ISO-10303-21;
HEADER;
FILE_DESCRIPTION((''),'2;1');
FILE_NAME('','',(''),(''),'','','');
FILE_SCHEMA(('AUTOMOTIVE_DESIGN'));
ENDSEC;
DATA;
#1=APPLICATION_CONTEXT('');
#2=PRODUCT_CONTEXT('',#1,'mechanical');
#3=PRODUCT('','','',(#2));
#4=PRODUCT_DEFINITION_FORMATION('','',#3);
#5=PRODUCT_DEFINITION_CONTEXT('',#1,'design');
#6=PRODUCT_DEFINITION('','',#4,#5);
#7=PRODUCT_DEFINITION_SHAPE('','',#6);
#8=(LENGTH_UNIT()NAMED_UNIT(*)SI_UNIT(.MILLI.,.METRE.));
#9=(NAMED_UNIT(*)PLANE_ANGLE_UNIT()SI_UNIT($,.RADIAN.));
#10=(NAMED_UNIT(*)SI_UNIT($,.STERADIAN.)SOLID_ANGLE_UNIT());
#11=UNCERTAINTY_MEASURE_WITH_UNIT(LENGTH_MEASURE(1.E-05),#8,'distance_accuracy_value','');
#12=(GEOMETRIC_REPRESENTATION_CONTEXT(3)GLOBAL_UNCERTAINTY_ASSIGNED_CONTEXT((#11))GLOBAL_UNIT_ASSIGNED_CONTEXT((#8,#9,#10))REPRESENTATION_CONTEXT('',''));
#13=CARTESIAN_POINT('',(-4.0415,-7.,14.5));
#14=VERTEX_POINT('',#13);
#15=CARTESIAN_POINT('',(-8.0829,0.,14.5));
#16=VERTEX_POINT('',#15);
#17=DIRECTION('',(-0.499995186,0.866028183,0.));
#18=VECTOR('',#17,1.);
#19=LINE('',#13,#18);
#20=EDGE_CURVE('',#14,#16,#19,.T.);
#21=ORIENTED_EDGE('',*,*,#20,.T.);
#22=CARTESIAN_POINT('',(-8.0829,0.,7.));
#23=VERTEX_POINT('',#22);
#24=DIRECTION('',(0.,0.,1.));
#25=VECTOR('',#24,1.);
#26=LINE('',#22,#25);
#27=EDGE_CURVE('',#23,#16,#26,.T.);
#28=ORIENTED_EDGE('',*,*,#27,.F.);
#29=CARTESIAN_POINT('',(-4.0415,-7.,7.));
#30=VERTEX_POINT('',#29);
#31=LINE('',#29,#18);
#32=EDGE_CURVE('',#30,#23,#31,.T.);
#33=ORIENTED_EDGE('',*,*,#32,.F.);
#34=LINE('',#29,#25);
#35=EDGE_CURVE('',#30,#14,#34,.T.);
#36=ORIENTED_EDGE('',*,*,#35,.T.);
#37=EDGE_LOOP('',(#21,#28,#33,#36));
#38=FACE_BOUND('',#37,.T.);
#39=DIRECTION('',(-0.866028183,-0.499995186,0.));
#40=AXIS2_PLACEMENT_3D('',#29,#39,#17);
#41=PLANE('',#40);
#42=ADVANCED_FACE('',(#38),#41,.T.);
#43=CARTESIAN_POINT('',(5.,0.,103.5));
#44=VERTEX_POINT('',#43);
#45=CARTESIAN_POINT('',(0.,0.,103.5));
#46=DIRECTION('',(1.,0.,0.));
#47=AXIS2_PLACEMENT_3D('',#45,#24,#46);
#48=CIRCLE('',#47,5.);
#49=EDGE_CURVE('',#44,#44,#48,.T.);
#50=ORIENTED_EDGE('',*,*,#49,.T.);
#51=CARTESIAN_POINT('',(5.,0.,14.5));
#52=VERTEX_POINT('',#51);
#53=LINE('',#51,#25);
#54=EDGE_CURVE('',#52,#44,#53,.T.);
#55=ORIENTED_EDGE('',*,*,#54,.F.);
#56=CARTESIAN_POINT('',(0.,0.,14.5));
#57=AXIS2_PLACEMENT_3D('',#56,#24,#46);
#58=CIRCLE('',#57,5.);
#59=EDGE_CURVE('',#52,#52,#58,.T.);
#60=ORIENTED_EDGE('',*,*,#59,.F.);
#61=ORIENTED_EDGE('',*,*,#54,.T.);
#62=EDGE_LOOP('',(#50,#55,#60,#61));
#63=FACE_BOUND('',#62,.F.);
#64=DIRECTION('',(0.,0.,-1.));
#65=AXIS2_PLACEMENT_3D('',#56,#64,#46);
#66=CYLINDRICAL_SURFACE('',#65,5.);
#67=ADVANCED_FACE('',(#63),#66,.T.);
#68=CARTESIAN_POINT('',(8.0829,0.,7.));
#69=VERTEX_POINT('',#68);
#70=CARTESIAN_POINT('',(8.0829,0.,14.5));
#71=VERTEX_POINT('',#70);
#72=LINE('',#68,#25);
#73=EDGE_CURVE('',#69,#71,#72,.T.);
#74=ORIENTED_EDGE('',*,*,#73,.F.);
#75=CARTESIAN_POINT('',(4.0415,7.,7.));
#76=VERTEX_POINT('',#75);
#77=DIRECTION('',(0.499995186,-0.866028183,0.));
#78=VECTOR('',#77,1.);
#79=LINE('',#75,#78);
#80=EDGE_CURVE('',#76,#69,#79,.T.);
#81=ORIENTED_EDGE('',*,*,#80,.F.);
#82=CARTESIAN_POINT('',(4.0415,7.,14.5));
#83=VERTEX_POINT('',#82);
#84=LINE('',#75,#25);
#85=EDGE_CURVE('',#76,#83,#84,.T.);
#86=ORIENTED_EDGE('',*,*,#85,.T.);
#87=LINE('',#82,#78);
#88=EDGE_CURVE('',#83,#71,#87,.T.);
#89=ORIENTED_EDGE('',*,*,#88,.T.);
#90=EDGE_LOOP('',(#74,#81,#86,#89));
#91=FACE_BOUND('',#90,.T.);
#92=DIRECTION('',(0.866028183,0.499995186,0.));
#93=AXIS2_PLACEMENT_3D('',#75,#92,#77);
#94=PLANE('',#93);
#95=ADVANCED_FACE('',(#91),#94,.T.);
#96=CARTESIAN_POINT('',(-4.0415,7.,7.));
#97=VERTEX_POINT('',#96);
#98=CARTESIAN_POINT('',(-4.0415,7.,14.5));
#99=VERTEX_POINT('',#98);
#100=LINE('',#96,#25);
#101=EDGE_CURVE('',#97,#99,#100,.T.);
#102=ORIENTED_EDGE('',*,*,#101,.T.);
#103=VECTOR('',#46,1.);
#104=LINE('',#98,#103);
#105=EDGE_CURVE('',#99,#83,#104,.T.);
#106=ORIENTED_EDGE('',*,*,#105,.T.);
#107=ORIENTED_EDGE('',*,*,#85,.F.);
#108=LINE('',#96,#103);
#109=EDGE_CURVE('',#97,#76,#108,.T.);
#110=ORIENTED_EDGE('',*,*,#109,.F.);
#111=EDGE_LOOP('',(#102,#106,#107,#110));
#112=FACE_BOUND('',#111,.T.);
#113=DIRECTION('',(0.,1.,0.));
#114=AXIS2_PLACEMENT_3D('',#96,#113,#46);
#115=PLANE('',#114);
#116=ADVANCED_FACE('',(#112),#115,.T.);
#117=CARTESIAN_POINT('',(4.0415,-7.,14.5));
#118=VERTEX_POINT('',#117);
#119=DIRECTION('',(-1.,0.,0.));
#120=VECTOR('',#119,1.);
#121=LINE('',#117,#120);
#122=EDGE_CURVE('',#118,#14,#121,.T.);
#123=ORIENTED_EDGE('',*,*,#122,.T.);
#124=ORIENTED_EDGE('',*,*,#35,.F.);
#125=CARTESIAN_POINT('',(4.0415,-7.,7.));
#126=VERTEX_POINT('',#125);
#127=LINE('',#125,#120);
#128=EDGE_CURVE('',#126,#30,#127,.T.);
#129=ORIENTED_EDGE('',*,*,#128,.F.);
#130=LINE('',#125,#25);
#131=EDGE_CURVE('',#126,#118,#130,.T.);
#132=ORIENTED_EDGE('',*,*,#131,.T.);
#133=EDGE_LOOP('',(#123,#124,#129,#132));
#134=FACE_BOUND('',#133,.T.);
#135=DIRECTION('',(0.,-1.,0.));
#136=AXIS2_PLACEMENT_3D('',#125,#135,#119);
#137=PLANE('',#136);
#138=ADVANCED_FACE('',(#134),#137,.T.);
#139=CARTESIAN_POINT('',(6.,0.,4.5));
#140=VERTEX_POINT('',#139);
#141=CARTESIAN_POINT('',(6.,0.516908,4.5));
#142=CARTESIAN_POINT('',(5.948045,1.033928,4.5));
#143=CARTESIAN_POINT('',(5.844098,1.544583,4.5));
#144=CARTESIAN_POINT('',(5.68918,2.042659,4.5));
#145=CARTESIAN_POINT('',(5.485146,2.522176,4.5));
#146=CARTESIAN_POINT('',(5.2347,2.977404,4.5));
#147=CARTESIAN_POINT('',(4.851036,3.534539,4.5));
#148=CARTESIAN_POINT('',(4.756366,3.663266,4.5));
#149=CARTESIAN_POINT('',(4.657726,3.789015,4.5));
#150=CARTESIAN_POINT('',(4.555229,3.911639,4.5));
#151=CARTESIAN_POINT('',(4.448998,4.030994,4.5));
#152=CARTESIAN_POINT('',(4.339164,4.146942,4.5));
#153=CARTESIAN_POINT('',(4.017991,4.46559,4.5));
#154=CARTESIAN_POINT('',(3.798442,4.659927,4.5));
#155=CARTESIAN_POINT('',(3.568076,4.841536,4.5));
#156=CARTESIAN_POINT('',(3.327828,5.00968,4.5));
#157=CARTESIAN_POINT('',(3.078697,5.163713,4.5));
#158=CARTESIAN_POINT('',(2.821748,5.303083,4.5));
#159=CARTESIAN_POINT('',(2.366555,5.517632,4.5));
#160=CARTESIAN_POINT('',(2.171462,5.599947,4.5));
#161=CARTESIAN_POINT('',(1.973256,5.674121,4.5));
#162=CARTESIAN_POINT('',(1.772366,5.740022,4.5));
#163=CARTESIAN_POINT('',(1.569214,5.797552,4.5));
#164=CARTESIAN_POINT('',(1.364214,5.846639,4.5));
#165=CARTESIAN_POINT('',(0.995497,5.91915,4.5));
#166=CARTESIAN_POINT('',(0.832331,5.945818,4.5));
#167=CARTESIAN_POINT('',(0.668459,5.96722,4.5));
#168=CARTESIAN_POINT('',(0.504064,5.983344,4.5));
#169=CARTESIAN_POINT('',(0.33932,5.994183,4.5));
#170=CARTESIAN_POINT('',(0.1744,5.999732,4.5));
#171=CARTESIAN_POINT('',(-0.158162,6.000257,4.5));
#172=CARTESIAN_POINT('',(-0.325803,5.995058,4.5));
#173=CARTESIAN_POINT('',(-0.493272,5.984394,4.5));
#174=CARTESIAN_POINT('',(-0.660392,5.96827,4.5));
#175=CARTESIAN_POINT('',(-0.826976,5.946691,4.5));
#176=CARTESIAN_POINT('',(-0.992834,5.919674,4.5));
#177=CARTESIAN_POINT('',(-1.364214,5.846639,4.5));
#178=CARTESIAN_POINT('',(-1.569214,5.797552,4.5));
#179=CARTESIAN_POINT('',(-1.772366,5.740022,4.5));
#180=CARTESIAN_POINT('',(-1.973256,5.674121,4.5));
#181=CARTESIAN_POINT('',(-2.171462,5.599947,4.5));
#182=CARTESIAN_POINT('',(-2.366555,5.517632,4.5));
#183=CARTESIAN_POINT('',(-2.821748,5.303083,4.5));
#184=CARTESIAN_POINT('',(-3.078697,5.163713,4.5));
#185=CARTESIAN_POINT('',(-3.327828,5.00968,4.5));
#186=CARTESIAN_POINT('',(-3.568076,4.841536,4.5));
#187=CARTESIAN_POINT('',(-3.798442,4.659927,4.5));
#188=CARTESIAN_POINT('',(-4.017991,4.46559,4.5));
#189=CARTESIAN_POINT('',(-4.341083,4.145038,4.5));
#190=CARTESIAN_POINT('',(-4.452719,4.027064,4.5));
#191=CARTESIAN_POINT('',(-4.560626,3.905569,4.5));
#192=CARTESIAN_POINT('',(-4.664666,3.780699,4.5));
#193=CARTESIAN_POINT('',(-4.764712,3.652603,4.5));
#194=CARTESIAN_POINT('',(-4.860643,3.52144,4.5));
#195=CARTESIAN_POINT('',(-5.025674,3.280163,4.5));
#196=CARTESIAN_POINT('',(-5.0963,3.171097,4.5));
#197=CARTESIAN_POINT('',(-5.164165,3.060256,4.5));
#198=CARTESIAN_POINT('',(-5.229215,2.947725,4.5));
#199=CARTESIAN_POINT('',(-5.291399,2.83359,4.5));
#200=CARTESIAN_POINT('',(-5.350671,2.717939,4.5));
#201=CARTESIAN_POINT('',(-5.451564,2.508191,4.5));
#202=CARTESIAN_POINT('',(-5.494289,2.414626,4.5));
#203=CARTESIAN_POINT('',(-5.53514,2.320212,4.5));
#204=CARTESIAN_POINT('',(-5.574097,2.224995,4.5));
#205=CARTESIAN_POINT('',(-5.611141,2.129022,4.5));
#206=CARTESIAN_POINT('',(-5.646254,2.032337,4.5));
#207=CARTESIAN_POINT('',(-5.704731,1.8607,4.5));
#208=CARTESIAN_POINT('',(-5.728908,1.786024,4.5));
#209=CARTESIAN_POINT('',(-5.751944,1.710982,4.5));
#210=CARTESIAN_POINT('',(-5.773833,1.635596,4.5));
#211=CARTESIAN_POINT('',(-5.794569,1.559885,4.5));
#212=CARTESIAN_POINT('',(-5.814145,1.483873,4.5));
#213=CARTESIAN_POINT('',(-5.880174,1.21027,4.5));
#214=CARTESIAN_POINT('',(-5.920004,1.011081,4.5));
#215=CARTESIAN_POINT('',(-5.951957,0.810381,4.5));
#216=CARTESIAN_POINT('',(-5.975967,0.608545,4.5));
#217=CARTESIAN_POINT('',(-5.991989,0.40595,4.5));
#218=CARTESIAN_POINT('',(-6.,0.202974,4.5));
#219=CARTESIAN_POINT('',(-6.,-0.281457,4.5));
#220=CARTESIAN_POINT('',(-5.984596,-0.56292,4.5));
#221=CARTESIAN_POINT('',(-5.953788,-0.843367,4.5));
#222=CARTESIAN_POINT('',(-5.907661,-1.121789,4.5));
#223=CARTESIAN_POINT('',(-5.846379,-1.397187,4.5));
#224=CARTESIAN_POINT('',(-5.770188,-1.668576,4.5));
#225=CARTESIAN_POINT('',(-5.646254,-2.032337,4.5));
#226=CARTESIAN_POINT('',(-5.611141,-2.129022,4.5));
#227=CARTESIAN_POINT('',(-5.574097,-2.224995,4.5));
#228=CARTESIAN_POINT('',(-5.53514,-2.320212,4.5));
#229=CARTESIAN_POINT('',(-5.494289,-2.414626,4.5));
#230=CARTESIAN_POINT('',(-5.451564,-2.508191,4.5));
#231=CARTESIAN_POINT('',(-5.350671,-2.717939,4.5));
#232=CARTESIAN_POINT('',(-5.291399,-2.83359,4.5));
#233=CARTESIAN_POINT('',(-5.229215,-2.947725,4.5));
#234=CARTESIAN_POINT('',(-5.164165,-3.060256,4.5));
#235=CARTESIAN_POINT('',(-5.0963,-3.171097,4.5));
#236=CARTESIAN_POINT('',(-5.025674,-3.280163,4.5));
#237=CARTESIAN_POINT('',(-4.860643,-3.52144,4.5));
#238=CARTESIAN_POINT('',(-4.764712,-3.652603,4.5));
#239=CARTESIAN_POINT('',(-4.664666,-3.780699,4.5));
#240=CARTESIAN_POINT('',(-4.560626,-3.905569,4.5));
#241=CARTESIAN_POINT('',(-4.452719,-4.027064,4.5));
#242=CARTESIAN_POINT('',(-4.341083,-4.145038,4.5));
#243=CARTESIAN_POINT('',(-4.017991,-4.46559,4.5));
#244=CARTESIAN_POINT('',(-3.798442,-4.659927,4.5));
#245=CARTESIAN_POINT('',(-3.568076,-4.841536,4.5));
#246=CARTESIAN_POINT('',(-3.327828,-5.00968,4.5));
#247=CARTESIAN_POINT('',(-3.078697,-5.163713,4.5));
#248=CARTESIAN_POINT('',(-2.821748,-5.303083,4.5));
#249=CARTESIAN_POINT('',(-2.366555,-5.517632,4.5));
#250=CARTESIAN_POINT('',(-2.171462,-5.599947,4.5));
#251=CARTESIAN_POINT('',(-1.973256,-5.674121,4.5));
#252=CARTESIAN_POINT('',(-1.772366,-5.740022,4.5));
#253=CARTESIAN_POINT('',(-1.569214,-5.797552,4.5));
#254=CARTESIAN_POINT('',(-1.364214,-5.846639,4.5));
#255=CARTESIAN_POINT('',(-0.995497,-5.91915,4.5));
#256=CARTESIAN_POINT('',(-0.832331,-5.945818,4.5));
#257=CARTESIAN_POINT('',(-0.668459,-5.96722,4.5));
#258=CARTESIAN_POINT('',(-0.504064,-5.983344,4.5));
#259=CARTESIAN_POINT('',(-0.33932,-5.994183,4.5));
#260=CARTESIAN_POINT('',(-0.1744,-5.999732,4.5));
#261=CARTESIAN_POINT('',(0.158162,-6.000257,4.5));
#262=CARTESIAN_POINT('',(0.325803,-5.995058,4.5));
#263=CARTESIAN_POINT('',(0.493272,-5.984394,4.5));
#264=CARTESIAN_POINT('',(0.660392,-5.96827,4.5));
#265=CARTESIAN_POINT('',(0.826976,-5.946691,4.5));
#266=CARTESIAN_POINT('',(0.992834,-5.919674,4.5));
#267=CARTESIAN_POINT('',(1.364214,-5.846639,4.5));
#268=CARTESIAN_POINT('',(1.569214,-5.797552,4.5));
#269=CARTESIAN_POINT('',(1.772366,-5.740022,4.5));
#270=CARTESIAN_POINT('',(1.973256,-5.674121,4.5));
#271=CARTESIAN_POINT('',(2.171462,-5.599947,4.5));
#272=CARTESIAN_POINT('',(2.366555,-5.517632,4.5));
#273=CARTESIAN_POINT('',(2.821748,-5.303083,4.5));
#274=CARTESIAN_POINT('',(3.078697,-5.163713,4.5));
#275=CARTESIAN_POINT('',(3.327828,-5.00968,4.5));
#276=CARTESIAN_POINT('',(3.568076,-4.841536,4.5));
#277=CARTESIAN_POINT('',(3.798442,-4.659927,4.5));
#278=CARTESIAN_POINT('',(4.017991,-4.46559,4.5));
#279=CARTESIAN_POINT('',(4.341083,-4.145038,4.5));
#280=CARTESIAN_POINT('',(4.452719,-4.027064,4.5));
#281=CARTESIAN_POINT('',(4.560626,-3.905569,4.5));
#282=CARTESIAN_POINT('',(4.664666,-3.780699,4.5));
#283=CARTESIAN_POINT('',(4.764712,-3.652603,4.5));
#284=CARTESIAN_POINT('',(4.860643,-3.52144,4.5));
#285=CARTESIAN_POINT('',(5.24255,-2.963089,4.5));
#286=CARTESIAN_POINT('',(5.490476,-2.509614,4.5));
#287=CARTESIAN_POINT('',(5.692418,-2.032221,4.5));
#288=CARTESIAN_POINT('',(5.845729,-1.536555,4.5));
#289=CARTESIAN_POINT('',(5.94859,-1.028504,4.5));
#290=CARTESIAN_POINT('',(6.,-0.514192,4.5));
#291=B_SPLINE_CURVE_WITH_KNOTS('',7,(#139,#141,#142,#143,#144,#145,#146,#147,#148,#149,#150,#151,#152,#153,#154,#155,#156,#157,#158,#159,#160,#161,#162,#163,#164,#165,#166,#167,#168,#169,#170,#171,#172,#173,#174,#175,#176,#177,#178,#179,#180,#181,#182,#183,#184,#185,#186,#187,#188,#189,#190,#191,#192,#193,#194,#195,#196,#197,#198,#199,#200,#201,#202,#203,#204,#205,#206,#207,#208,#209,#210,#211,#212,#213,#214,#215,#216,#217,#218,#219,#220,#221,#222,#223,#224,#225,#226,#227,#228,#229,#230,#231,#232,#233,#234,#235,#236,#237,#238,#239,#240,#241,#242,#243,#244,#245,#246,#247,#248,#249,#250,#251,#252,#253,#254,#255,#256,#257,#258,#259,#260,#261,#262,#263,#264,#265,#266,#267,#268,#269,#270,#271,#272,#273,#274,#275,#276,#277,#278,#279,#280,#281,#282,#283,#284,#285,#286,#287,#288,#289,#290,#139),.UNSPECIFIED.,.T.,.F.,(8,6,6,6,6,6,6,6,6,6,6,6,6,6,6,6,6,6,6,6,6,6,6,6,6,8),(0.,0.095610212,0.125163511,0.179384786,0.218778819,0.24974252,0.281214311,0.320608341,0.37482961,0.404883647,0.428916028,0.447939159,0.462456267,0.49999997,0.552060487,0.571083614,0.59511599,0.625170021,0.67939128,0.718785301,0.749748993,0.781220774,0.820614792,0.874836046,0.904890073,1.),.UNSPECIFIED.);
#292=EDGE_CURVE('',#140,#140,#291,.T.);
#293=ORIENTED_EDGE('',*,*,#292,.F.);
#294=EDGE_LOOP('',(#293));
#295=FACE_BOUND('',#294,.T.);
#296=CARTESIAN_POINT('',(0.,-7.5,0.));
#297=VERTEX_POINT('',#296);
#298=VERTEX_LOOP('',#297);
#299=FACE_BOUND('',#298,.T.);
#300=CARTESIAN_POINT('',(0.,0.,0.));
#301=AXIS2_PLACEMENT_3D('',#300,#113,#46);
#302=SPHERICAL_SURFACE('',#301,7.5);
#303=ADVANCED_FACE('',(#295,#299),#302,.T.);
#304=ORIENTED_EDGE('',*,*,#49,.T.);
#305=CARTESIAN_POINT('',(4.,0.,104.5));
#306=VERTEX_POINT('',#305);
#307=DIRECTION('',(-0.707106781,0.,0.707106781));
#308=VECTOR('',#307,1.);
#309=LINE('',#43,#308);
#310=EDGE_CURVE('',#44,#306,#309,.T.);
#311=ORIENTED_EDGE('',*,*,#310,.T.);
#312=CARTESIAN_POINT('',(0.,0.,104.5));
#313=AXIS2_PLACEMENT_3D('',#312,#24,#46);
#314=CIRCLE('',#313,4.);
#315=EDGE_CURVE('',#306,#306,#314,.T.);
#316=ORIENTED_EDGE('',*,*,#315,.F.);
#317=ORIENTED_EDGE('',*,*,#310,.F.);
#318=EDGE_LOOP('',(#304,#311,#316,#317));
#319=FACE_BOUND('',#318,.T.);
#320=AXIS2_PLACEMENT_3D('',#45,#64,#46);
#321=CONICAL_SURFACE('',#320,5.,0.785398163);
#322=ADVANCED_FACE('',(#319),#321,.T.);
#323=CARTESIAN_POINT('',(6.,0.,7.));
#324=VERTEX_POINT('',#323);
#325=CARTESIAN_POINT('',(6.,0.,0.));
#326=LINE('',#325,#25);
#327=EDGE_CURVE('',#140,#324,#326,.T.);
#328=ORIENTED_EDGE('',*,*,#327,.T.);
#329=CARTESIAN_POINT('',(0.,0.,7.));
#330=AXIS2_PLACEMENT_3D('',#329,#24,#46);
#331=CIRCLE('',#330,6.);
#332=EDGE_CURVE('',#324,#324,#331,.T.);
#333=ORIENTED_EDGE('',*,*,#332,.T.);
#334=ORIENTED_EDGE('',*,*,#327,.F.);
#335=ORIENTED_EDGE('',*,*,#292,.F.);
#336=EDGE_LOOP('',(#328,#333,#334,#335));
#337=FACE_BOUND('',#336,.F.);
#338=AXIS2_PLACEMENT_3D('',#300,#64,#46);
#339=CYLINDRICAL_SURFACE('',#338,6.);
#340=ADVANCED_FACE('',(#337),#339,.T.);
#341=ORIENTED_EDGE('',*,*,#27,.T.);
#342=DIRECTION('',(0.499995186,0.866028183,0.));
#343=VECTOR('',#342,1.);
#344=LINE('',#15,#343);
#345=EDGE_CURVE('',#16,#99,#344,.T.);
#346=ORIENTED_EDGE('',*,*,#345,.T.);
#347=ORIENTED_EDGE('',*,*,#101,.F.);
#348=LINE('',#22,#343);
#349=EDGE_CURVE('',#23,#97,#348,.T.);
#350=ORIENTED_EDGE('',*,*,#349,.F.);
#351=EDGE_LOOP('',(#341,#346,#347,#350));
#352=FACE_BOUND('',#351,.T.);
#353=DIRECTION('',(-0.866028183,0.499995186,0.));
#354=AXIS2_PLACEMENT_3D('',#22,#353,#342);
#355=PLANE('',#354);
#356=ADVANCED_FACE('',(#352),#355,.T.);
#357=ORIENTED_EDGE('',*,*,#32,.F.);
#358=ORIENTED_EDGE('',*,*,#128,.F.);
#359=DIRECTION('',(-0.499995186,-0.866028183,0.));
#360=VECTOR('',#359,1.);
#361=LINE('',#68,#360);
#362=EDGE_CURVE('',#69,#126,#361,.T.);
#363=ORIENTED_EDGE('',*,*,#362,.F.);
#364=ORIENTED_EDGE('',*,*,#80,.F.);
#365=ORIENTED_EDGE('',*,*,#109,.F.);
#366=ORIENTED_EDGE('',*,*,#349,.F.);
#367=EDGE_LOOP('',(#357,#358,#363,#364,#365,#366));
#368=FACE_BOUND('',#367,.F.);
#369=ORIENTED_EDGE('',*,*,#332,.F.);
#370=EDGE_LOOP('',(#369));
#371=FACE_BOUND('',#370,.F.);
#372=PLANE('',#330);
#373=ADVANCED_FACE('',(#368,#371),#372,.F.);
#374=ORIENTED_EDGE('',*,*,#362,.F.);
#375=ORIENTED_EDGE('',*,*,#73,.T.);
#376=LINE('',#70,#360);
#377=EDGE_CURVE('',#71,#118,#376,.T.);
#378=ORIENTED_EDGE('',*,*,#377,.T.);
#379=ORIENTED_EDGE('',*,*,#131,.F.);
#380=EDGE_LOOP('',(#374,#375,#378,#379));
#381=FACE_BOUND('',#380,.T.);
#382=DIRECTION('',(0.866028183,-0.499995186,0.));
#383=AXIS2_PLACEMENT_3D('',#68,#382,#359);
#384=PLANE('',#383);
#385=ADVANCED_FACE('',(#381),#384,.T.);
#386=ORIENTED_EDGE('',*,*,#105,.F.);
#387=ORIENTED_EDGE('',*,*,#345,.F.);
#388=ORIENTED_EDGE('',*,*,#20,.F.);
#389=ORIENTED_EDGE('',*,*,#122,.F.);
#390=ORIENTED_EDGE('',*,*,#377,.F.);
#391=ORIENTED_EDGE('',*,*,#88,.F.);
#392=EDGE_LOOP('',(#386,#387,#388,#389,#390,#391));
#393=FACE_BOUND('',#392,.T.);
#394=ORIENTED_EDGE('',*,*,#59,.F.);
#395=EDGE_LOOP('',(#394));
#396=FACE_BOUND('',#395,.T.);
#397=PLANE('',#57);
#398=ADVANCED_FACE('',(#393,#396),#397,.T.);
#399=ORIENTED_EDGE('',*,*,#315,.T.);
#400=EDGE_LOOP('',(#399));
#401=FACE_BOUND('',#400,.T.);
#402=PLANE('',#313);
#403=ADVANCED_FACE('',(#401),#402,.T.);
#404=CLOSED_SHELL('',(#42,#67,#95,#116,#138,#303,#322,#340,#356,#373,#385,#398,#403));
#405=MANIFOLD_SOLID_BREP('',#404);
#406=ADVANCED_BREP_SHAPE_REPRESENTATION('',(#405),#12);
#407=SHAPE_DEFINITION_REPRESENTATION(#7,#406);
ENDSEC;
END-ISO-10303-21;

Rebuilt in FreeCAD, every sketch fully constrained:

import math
import FreeCAD as App
import Part
import Sketcher
from FreeCAD import Vector
Q = App.Units.Quantity


def edges_at(feature, points):
    """Names of the edges that pass closest to the given points."""
    edges = feature.Shape.Edges
    near = lambda p: min(range(len(edges)), key=lambda i: edges[i].distToShape(Part.Vertex(*p))[0])
    return sorted({f"Edge{near(p) + 1}" for p in points})

doc = App.newDocument("Part")
body = doc.addObject("PartDesign::Body", "Body")

# Sketch on XY plane
sketch1 = body.newObject("Sketcher::SketchObject", "Sketch")
sketch1.AttachmentSupport = (doc.getObject("XY_Plane"), [""])
sketch1.MapMode = "FlatFace"
sketch1.addGeometry([
    Part.LineSegment(Vector(0, 7.5, 0), Vector(0, -7.5, 0)),
    Part.ArcOfCircle(Part.Circle(Vector(0, 0, 0), Vector(0, 0, 1), 7.5), math.radians(-90), math.radians(90)),
], False)
sketch1.addConstraint([
    Sketcher.Constraint("Coincident", 0, 1, 1, 2),
    Sketcher.Constraint("Coincident", 1, 1, 0, 2),
    Sketcher.Constraint("Vertical", 0),
    Sketcher.Constraint("Coincident", 1, 3, -1, 1),
    Sketcher.Constraint("PointOnObject", 0, 1, -2),
    Sketcher.Constraint("Radius", 1, 7.5),
])
revolution = body.newObject("PartDesign::Revolution", "Revolution")
revolution.Profile = sketch1
revolution.ReferenceAxis = (sketch1, ["V_Axis"])
revolution.Angle = 360

# Sketch on XY plane
sketch2 = body.newObject("Sketcher::SketchObject", "Sketch001")
sketch2.AttachmentSupport = (doc.getObject("XY_Plane"), [""])
sketch2.MapMode = "FlatFace"
sketch2.addGeometry(Part.Circle(Vector(0, 0, 0), Vector(0, 0, 1), 6), False)
sketch2.addConstraint([
    Sketcher.Constraint("Coincident", 0, 3, -1, 1),
    Sketcher.Constraint("Diameter", 0, 12.0),
])
pad1 = body.newObject("PartDesign::Pad", "Pad")
pad1.Profile = sketch2
pad1.Length = 7

# Sketch on XY plane
sketch3 = body.newObject("Sketcher::SketchObject", "Sketch002")
sketch3.AttachmentSupport = (doc.getObject("XY_Plane"), [""])
sketch3.MapMode = "FlatFace"
sketch3.AttachmentOffset = App.Placement(Vector(0, 0, 7), App.Rotation())
sketch3.addGeometry([
    Part.LineSegment(Vector(4.0415, 7, 0), Vector(-4.0415, 7, 0)),  # 0
    Part.LineSegment(Vector(-4.0415, 7, 0), Vector(-8.0829, 0, 0)),  # 1
    Part.LineSegment(Vector(-8.0829, 0, 0), Vector(-4.0415, -7, 0)),  # 2
    Part.LineSegment(Vector(-4.0415, -7, 0), Vector(4.0415, -7, 0)),  # 3
    Part.LineSegment(Vector(4.0415, -7, 0), Vector(8.0829, 0, 0)),  # 4
    Part.LineSegment(Vector(8.0829, 0, 0), Vector(4.0415, 7, 0)),  # 5
], False)
sketch3.addConstraint([
    Sketcher.Constraint("Coincident", 0, 2, 1, 1),
    Sketcher.Constraint("Coincident", 1, 2, 2, 1),
    Sketcher.Constraint("Coincident", 2, 2, 3, 1),
    Sketcher.Constraint("Coincident", 3, 2, 4, 1),
    Sketcher.Constraint("Coincident", 4, 2, 5, 1),
    Sketcher.Constraint("Coincident", 5, 2, 0, 1),
    Sketcher.Constraint("Horizontal", 0),
    Sketcher.Constraint("Horizontal", 3),
    Sketcher.Constraint("Symmetric", 0, 2, 3, 2, -1, 1),
    Sketcher.Constraint("Symmetric", 1, 2, 4, 2, -1, 1),
    Sketcher.Constraint("PointOnObject", 1, 2, -1),
    Sketcher.Constraint("Parallel", 2, 5),
    Sketcher.Constraint("Vertical", 0, 2, 2, 2),
    Sketcher.Constraint("Angle", 1, Q("-119.9997 deg")),
    Sketcher.Constraint("DistanceY", 2, 2, 0, 2, 14.0),
    Sketcher.Constraint("DistanceX", 0, 2, 0, 1, 8.083),
])
pad2 = body.newObject("PartDesign::Pad", "Pad001")
pad2.Profile = sketch3
pad2.Length = 7.5

# Sketch on XY plane
sketch4 = body.newObject("Sketcher::SketchObject", "Sketch003")
sketch4.AttachmentSupport = (doc.getObject("XY_Plane"), [""])
sketch4.MapMode = "FlatFace"
sketch4.AttachmentOffset = App.Placement(Vector(0, 0, 14.5), App.Rotation())
sketch4.addGeometry(Part.Circle(Vector(0, 0, 0), Vector(0, 0, 1), 5), False)
sketch4.addConstraint([
    Sketcher.Constraint("Coincident", 0, 3, -1, 1),
    Sketcher.Constraint("Diameter", 0, 10.0),
])
pad3 = body.newObject("PartDesign::Pad", "Pad002")
pad3.Profile = sketch4
pad3.Length = 90
doc.recompute()

chamfer = body.newObject("PartDesign::Chamfer", "Chamfer")
chamfer.Base = (pad3, edges_at(pad3, [(-5, 0, 104.5)]))
chamfer.Size = 1

doc.recompute()
